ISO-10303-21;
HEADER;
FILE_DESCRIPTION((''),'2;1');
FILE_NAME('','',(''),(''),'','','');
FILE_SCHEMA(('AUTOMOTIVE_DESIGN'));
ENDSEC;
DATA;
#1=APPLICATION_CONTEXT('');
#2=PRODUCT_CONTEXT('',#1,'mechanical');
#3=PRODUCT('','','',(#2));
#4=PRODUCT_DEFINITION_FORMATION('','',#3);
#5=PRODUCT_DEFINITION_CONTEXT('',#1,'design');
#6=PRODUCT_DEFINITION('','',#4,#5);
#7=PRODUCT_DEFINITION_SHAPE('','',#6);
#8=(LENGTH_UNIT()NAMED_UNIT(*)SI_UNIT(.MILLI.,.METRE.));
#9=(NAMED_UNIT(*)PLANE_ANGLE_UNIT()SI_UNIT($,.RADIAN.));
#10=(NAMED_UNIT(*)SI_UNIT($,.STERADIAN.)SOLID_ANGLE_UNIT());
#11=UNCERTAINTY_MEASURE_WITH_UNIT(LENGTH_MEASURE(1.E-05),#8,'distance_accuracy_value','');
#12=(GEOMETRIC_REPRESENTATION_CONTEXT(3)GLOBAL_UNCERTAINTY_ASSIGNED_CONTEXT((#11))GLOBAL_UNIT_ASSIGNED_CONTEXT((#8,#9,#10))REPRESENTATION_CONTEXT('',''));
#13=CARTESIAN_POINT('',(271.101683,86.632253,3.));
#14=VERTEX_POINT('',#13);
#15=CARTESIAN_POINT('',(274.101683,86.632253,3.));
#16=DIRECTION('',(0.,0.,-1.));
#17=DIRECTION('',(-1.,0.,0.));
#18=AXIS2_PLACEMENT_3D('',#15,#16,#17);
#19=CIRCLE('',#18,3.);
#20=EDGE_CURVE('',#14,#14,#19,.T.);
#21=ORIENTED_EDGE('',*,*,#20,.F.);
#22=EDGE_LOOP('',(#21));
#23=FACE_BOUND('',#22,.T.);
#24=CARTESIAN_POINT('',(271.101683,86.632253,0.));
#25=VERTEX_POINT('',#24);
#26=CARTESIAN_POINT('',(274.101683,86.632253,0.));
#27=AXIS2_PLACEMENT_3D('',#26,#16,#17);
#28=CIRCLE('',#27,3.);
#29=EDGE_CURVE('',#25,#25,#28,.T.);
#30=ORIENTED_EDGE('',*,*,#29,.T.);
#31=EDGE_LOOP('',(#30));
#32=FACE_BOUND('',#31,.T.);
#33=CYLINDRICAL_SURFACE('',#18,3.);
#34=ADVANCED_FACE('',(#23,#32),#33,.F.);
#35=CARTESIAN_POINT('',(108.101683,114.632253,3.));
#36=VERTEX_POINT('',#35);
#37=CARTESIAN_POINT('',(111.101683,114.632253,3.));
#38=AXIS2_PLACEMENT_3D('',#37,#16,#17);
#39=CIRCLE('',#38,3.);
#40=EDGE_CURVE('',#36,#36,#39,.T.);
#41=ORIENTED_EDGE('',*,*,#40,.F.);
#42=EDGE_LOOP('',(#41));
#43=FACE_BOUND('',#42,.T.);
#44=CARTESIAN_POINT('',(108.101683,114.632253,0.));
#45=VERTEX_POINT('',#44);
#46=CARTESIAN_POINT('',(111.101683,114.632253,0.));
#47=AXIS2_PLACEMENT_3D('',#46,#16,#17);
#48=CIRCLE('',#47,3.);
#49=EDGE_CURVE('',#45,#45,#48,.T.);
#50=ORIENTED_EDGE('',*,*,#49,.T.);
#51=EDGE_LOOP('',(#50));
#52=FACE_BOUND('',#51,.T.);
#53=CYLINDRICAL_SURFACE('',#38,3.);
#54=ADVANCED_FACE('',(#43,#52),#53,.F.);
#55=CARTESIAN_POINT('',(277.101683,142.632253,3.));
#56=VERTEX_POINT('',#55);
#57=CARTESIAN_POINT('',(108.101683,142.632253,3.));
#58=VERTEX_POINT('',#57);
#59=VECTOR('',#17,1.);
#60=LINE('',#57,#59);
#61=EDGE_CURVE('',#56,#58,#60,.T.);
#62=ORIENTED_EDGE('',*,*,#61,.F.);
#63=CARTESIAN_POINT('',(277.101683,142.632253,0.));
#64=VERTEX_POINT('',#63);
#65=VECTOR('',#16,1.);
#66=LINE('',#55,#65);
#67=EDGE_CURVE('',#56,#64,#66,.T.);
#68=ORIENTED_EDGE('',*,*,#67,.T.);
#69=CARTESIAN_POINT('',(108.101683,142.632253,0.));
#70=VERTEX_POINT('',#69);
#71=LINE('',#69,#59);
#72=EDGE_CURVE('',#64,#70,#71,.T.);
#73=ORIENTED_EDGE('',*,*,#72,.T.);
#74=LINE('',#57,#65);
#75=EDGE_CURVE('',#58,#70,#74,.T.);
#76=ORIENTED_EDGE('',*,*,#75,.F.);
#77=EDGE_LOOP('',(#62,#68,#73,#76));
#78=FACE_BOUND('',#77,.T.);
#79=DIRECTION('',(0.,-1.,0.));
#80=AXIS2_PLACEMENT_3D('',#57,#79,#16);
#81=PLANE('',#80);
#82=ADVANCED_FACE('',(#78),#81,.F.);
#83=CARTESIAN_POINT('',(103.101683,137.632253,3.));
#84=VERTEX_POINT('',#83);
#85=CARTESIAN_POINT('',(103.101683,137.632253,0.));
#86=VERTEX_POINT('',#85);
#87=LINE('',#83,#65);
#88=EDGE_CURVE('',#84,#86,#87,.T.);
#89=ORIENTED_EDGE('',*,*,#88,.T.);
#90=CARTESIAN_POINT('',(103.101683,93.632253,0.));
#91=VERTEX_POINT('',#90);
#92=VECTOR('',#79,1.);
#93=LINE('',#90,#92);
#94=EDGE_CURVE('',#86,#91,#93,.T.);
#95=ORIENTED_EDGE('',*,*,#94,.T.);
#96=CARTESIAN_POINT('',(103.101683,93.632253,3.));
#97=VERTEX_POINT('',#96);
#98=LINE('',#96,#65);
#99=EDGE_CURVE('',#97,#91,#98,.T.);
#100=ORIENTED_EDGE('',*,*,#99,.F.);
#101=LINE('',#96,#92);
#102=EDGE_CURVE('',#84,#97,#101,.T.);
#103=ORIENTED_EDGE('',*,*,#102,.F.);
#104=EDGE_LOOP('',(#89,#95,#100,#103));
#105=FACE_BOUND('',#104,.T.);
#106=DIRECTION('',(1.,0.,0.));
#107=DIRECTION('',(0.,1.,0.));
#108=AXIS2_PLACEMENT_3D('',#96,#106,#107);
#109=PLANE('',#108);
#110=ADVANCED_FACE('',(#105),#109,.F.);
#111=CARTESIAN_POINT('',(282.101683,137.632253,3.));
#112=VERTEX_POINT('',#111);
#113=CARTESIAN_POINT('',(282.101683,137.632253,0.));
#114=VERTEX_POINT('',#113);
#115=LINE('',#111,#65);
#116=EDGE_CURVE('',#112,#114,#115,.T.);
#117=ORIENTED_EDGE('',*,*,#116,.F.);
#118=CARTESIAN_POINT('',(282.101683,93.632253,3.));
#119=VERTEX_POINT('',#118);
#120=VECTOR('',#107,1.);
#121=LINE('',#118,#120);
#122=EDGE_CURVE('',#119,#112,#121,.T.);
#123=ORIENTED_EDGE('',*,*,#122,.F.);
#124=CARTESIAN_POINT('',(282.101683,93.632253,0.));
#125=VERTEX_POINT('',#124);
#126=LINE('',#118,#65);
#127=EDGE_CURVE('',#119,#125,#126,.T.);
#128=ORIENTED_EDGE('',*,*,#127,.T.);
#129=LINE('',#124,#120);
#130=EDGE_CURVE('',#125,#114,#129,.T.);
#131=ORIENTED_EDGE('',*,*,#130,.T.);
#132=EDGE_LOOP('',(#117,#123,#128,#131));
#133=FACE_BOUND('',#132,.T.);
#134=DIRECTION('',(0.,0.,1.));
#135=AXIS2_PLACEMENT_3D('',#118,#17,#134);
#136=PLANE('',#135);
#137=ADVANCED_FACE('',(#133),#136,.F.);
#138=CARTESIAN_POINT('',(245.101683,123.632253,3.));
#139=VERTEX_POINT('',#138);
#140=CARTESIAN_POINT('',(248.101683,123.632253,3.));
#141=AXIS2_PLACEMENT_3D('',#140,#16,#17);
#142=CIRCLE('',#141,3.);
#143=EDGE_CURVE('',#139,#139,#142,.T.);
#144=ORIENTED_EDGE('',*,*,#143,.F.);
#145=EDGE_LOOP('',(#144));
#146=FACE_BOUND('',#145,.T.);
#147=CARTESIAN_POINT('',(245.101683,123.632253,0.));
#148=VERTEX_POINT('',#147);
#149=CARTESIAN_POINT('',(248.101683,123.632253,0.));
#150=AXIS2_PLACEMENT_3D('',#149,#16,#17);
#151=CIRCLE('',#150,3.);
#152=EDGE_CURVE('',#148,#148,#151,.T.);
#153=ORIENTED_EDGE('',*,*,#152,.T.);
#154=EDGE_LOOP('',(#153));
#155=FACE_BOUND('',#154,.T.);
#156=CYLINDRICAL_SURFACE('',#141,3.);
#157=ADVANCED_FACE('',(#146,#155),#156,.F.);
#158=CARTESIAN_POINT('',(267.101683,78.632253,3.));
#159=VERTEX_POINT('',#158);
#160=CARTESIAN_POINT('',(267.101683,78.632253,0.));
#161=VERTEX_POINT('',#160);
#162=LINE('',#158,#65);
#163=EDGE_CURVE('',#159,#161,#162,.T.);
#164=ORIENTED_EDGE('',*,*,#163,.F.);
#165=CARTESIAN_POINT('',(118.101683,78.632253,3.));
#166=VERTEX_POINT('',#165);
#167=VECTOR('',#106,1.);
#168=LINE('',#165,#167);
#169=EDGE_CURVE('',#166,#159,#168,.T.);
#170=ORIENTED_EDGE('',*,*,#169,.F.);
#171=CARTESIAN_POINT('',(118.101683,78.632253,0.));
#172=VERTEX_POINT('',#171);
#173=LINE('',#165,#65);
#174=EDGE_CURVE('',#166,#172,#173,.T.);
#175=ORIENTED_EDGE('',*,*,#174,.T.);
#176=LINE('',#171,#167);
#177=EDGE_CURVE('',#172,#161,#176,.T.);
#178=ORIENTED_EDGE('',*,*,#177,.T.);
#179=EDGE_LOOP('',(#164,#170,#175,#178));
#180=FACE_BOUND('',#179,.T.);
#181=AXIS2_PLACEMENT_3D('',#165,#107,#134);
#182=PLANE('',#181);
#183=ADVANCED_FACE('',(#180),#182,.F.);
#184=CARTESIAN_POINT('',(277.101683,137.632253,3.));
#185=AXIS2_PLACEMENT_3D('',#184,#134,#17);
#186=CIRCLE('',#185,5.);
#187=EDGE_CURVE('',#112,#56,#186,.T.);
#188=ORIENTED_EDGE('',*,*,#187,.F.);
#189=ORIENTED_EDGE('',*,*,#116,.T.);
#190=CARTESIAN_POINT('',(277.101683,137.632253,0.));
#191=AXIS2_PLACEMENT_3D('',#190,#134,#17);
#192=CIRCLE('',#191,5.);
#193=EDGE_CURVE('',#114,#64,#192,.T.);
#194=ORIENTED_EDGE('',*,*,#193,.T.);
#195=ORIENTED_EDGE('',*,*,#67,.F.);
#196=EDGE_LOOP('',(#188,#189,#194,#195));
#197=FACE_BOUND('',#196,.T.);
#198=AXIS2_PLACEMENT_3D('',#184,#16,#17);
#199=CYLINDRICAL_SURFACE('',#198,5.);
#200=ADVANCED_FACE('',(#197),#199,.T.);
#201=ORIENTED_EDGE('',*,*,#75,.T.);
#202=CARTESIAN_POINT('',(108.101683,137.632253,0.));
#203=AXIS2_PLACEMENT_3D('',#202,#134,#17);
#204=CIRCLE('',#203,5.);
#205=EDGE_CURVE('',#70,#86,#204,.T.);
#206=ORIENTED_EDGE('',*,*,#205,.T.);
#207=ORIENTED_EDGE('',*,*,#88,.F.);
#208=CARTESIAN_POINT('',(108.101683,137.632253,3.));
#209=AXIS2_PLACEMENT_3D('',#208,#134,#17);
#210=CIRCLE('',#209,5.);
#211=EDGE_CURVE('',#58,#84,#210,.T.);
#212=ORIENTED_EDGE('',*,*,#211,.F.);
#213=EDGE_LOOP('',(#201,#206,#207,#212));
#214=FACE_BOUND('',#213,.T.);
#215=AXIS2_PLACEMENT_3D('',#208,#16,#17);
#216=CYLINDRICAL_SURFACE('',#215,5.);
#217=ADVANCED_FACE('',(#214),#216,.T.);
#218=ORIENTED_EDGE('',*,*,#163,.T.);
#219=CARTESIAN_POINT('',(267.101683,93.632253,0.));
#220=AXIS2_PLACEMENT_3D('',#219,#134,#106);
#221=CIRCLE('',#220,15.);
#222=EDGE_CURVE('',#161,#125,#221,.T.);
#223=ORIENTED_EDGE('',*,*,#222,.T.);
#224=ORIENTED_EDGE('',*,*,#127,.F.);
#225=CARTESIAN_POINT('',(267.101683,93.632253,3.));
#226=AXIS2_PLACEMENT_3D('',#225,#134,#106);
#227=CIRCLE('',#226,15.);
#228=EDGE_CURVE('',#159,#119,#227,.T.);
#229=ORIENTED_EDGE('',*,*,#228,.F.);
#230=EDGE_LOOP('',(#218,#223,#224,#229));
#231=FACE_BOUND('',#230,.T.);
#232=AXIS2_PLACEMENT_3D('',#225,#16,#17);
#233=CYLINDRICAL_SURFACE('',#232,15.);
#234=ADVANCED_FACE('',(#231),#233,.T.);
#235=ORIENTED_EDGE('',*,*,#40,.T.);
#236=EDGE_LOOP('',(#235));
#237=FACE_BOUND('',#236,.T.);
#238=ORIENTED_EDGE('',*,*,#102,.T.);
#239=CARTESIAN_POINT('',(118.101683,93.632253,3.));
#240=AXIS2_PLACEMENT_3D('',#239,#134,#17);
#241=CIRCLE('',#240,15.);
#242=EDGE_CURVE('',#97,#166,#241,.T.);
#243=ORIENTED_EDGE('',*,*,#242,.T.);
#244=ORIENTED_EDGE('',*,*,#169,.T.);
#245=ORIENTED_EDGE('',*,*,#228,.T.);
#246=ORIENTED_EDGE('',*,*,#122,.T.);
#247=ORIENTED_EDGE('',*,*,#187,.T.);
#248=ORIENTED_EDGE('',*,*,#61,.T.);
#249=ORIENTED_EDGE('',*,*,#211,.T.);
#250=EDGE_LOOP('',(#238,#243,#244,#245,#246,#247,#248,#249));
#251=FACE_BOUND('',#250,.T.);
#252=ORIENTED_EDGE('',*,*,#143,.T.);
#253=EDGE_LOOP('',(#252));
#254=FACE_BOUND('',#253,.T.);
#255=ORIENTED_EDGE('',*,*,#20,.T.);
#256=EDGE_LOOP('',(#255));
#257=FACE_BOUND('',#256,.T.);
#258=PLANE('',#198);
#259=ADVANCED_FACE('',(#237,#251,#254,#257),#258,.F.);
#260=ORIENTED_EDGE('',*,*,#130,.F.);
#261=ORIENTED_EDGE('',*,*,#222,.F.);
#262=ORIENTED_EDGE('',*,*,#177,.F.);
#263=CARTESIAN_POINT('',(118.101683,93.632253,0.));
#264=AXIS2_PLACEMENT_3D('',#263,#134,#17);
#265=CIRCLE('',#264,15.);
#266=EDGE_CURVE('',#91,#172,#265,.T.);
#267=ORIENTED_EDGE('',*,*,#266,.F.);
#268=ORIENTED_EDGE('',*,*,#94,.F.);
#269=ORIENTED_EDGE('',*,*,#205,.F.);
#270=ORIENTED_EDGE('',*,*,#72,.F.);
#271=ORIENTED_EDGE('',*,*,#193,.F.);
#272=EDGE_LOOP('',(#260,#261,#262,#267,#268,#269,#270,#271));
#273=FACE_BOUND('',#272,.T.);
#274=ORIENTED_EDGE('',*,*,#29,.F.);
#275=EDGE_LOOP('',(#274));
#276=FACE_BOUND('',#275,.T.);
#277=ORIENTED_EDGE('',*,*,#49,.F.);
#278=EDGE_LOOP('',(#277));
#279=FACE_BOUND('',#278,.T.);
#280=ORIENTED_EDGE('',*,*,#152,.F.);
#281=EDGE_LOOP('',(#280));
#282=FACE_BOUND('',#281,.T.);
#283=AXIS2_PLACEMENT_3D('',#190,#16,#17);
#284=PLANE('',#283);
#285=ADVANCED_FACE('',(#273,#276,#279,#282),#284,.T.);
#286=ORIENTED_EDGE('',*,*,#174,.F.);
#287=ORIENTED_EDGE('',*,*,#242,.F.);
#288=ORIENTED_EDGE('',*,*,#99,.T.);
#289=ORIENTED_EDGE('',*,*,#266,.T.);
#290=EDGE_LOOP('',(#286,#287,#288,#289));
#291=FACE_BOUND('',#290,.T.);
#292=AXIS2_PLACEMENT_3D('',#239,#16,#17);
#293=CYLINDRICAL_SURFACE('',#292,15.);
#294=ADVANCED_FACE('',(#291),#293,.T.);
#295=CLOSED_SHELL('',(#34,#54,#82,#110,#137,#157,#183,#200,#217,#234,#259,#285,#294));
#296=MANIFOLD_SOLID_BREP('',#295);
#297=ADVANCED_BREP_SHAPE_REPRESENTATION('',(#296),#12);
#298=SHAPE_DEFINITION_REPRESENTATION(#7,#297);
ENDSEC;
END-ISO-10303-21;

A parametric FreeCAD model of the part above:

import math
import FreeCAD as App
import Part
import Sketcher

V = App.Vector
Q = App.Units.Quantity

doc = App.newDocument("Part")
body = doc.addObject("PartDesign::Body", "Body")

sketch1 = doc.addObject("Sketcher::SketchObject", "Sketch")
body.addObject(sketch1)
sketch1.AttachmentSupport = (doc.XY_Plane, [""])
sketch1.MapMode = "FlatFace"
sketch1.addGeometry([
    Part.LineSegment(V(118, 79, 0), V(267, 79, 0)),
    Part.ArcOfCircle(Part.Circle(V(267, 94, 0), V(0, 0, 1), 15), math.radians(-90), math.radians(0)),
    Part.LineSegment(V(282, 94, 0), V(282, 138, 0)),
    Part.ArcOfCircle(Part.Circle(V(277, 138, 0), V(0, 0, 1), 5), math.radians(0), math.radians(90)),
    Part.LineSegment(V(277, 143, 0), V(108, 143, 0)),
    Part.ArcOfCircle(Part.Circle(V(108, 138, 0), V(0, 0, 1), 5), math.radians(90), math.radians(180)),
    Part.LineSegment(V(103, 138, 0), V(103, 94, 0)),
    Part.ArcOfCircle(Part.Circle(V(118, 94, 0), V(0, 0, 1), 15), math.radians(-180), math.radians(-90)),
], False)
sketch1.addConstraint([
    Sketcher.Constraint("Tangent", 0, 2, 1, 1),
    Sketcher.Constraint("Tangent", 1, 2, 2, 1),
    Sketcher.Constraint("Tangent", 2, 2, 3, 1),
    Sketcher.Constraint("Tangent", 3, 2, 4, 1),
    Sketcher.Constraint("Tangent", 4, 2, 5, 1),
    Sketcher.Constraint("Tangent", 5, 2, 6, 1),
    Sketcher.Constraint("Tangent", 6, 2, 7, 1),
    Sketcher.Constraint("Tangent", 7, 2, 0, 1),
    Sketcher.Constraint("Horizontal", 0),
    Sketcher.Constraint("Vertical", 2),
    Sketcher.Constraint("Horizontal", 4),
    Sketcher.Constraint("Vertical", 6),
    Sketcher.Constraint("Equal", 3, 5),
    Sketcher.Constraint("Equal", 1, 7),
    Sketcher.Constraint("Radius", 1, Q("15 mm")),
    Sketcher.Constraint("Radius", 3, Q("5 mm")),
    Sketcher.Constraint("DistanceX", 0, 1, 0, 2, Q("149 mm")),
    Sketcher.Constraint("DistanceY", 2, 1, 2, 2, Q("44 mm")),
    Sketcher.Constraint("DistanceX", -1, 1, 1, 3, Q("267.101683 mm")),
    Sketcher.Constraint("DistanceY", -1, 1, 1, 3, Q("93.632253 mm")),
])
pad1 = doc.addObject("PartDesign::Pad", "Pad")
body.addObject(pad1)
pad1.Profile = sketch1
pad1.Length = 3

sketch2 = doc.addObject("Sketcher::SketchObject", "Sketch001")
body.addObject(sketch2)
sketch2.AttachmentSupport = (doc.XY_Plane, [""])
sketch2.MapMode = "FlatFace"
sketch2.addGeometry([
    Part.Circle(V(111.1, 114.6, 0), V(0, 0, 1), 3),
    Part.Circle(V(248.1, 123.6, 0), V(0, 0, 1), 3),
    Part.Circle(V(274.1, 86.6, 0), V(0, 0, 1), 3),
], False)
sketch2.addConstraint([
    Sketcher.Constraint("Equal", 0, 1),
    Sketcher.Constraint("Equal", 1, 2),
    Sketcher.Constraint("Diameter", 0, Q("6 mm")),
    Sketcher.Constraint("DistanceX", 0, 3, 1, 3, Q("137 mm")),
    Sketcher.Constraint("DistanceY", 0, 3, 1, 3, Q("9 mm")),
    Sketcher.Constraint("DistanceX", 1, 3, 2, 3, Q("26 mm")),
    Sketcher.Constraint("DistanceY", 2, 3, 1, 3, Q("37 mm")),
    Sketcher.Constraint("DistanceX", -1, 1, 0, 3, Q("111.101683 mm")),
    Sketcher.Constraint("DistanceY", -1, 1, 0, 3, Q("114.632253 mm")),
])
pocket1 = doc.addObject("PartDesign::Pocket", "Pocket")
body.addObject(pocket1)
pocket1.Profile = sketch2
pocket1.Length = 3
pocket1.Reversed = True

doc.recompute()
